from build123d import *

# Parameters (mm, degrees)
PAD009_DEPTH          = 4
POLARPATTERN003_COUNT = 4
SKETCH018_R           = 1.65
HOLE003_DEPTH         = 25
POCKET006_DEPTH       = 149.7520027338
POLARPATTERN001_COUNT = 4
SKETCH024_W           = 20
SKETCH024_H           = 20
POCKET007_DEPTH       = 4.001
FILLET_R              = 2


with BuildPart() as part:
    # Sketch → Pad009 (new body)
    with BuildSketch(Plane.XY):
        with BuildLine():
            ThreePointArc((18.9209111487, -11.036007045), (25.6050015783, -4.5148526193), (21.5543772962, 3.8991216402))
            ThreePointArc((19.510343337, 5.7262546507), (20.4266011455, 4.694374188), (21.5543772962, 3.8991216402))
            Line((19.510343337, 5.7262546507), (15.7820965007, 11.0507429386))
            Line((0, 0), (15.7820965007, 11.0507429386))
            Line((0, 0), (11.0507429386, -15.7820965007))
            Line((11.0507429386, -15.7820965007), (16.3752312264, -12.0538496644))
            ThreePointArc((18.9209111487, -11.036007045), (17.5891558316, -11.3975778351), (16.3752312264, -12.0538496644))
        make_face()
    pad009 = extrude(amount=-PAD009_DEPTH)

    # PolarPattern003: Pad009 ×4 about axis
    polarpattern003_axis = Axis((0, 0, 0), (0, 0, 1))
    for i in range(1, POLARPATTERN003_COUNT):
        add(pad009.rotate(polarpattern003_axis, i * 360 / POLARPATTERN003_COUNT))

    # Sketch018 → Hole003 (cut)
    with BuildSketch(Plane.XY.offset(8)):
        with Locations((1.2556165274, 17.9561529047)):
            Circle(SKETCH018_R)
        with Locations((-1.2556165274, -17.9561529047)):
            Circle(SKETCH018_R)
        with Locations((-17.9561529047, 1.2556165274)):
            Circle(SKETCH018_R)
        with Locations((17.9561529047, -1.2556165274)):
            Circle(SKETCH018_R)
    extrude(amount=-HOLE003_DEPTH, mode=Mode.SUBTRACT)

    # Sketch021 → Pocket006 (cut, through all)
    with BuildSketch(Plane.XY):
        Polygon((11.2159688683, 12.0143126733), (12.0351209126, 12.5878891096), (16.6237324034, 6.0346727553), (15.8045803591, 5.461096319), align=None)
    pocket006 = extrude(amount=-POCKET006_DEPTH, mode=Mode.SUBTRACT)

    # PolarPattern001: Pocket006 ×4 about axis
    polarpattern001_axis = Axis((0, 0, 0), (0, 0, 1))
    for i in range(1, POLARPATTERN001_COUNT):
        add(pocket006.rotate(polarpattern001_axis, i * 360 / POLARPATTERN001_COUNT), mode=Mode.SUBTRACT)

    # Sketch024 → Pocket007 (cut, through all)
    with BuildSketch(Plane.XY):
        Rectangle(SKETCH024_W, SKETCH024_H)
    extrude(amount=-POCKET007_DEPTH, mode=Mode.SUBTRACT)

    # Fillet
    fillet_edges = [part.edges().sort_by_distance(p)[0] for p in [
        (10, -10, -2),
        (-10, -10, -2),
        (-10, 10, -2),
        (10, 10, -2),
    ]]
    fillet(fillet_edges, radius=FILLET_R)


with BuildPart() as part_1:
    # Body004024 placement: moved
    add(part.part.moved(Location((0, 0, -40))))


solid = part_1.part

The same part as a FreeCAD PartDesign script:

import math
import FreeCAD as App
import Part
import Sketcher

V = App.Vector
Q = App.Units.Quantity


def edges_at(feature, points):
    """Names of the edges that pass closest to the given points."""
    edges = feature.Shape.Edges
    near = lambda p: min(range(len(edges)), key=lambda i: edges[i].distToShape(Part.Vertex(*p))[0])
    return sorted({f"Edge{near(p) + 1}" for p in points})


def add_polygon(sketch, points):
    """Adds a closed chain of lines whose ends are joined by coincident constraints."""
    first, n = sketch.GeometryCount, len(points)
    for a, b in zip(points, points[1:] + points[:1]):
        sketch.addGeometry(Part.LineSegment(App.Vector(*a, 0), App.Vector(*b, 0)), False)
    for i in range(n):
        sketch.addConstraint(Sketcher.Constraint("Coincident", first + i, 2, first + (i + 1) % n, 1))

doc = App.newDocument("Part")
body = doc.addObject("PartDesign::Body", "Body")

# Sketch on XY plane
sketch1 = body.newObject("Sketcher::SketchObject", "Sketch")
sketch1.AttachmentSupport = (doc.getObject("XY_Plane"), [""])
sketch1.MapMode = "FlatFace"
sketch1.addGeometry(Part.ArcOfCircle(Part.Circle(V(17.7, -3.1, 0), V(0, 0, 1), 8), math.radians(-81), math.radians(61)), False)
sketch1.addGeometry(Part.ArcOfCircle(Part.Circle(V(24.4, 9.2, 0), V(0, 0, 1), 6), math.radians(-145), math.radians(-119)), False)
sketch1.addGeometry(Part.LineSegment(V(19.5, 5.7, 0), V(15.8, 11.1, 0)), False)
sketch1.addGeometry(Part.LineSegment(V(15.8, 11.1, 0), V(0, 0, 0)), False)
sketch1.addGeometry(Part.LineSegment(V(0, 0, 0), V(11.1, -15.8, 0)), False)
sketch1.addGeometry(Part.LineSegment(V(11.1, -15.8, 0), V(16.4, -12.1, 0)), False)
sketch1.addGeometry(Part.ArcOfCircle(Part.Circle(V(19.8, -17, 0), V(0, 0, 1), 6), math.radians(99), math.radians(125)), False)
sketch1.addConstraint(Sketcher.Constraint("Tangent", 0, 2, 1, 2))
sketch1.addConstraint(Sketcher.Constraint("Tangent", 1, 1, 2, 1))
sketch1.addConstraint(Sketcher.Constraint("Coincident", 2, 2, 3, 1))
sketch1.addConstraint(Sketcher.Constraint("Coincident", 3, 2, 4, 1))
sketch1.addConstraint(Sketcher.Constraint("Coincident", 4, 2, 5, 1))
sketch1.addConstraint(Sketcher.Constraint("Tangent", 5, 2, 6, 2))
sketch1.addConstraint(Sketcher.Constraint("Tangent", 6, 1, 0, 1))
sketch1.addConstraint(Sketcher.Constraint("Coincident", 3, 2, -1, 1))
sketch1.addConstraint(Sketcher.Constraint("Equal", 1, 6))
sketch1.addConstraint(Sketcher.Constraint("Perpendicular", 2, 3))
sketch1.addConstraint(Sketcher.Constraint("Perpendicular", 3, 4))
sketch1.addConstraint(Sketcher.Constraint("Perpendicular", 4, 5))
sketch1.addConstraint(Sketcher.Constraint("Equal", 3, 4))
sketch1.addConstraint(Sketcher.Constraint("Equal", 2, 5))
sketch1.addConstraint(Sketcher.Constraint("Radius", 0, 8.0))
sketch1.addConstraint(Sketcher.Constraint("Radius", 1, 6.0))
sketch1.addConstraint(Sketcher.Constraint("Angle", 2, Q("125 deg")))
sketch1.addConstraint(Sketcher.Constraint("Distance", 2, 6.5))
sketch1.addConstraint(Sketcher.Constraint("DistanceX", 4, 2, 1, 1, 8.4596))
pad1 = body.newObject("PartDesign::Pad", "Pad")
pad1.Profile = sketch1
pad1.Length = 4
pad1.Reversed = True
doc.recompute()

polarpattern = body.newObject("PartDesign::PolarPattern", "PolarPattern")
polarpattern.Originals = [pad1]
polarpattern.Axis = (doc.getObject("Z_Axis"), [""])
polarpattern.Angle = 360
polarpattern.Occurrences = 4
body.Tip = polarpattern

# Sketch on XY plane
sketch2 = body.newObject("Sketcher::SketchObject", "Sketch001")
sketch2.AttachmentSupport = (doc.getObject("XY_Plane"), [""])
sketch2.MapMode = "FlatFace"
sketch2.AttachmentOffset = App.Placement(V(0, 0, 8), App.Rotation())
sketch2.addGeometry(Part.Circle(V(1.3, 18, 0), V(0, 0, 1), 1.6), False)
sketch2.addGeometry(Part.Circle(V(-1.3, -18, 0), V(0, 0, 1), 1.6), False)
sketch2.addGeometry(Part.Circle(V(-18, 1.3, 0), V(0, 0, 1), 1.6), False)
sketch2.addGeometry(Part.Circle(V(18, -1.3, 0), V(0, 0, 1), 1.6), False)
sketch2.addConstraint(Sketcher.Constraint("Equal", 0, 1))
sketch2.addConstraint(Sketcher.Constraint("Equal", 1, 2))
sketch2.addConstraint(Sketcher.Constraint("Equal", 2, 3))
sketch2.addConstraint(Sketcher.Constraint("Symmetric", 0, 3, 1, 3, -1, 1))
sketch2.addConstraint(Sketcher.Constraint("Symmetric", 2, 3, 3, 3, -1, 1))
sketch2.addConstraint(Sketcher.Constraint("Diameter", 0, 3.3))
sketch2.addConstraint(Sketcher.Constraint("DistanceX", 2, 3, 0, 3, 19.211769))
sketch2.addConstraint(Sketcher.Constraint("DistanceY", 1, 3, 2, 3, 19.211769))
sketch2.addConstraint(Sketcher.Constraint("DistanceX", -1, 1, 0, 3, 1.255617))
sketch2.addConstraint(Sketcher.Constraint("DistanceY", -1, 1, 0, 3, 17.956153))
pocket1 = body.newObject("PartDesign::Pocket", "Pocket")
pocket1.Profile = sketch2
pocket1.Length = 25

# Sketch on XY plane
sketch3 = body.newObject("Sketcher::SketchObject", "Sketch002")
sketch3.AttachmentSupport = (doc.getObject("XY_Plane"), [""])
sketch3.MapMode = "FlatFace"
add_polygon(sketch3, [(12, 12.6), (11.2, 12), (15.8, 5.5), (16.6, 6)])  # lines 0-3
sketch3.addConstraint(Sketcher.Constraint("Perpendicular", 0, 1))
sketch3.addConstraint(Sketcher.Constraint("Perpendicular", 1, 2))
sketch3.addConstraint(Sketcher.Constraint("Perpendicular", 2, 3))
sketch3.addConstraint(Sketcher.Constraint("Angle", 0, Q("-145 deg")))
sketch3.addConstraint(Sketcher.Constraint("Distance", 0, 1.0))
sketch3.addConstraint(Sketcher.Constraint("Distance", 1, 8.0))
sketch3.addConstraint(Sketcher.Constraint("DistanceX", -1, 1, 0, 2, 11.215969))
sketch3.addConstraint(Sketcher.Constraint("DistanceY", -1, 1, 3, 2, 12.587889))
pocket2 = body.newObject("PartDesign::Pocket", "Pocket001")
pocket2.Profile = sketch3
pocket2.Type = "ThroughAll"
doc.recompute()

polarpattern2 = body.newObject("PartDesign::PolarPattern", "PolarPattern001")
polarpattern2.Originals = [pocket2]
polarpattern2.Axis = (doc.getObject("Z_Axis"), [""])
polarpattern2.Angle = 360
polarpattern2.Occurrences = 4
body.Tip = polarpattern2

# Sketch on XY plane
sketch4 = body.newObject("Sketcher::SketchObject", "Sketch003")
sketch4.AttachmentSupport = (doc.getObject("XY_Plane"), [""])
sketch4.MapMode = "FlatFace"
add_polygon(sketch4, [(-10, 10), (-10, -10), (10, -10), (10, 10)])  # lines 0-3
sketch4.addConstraint(Sketcher.Constraint("Vertical", 0))
sketch4.addConstraint(Sketcher.Constraint("Horizontal", 1))
sketch4.addConstraint(Sketcher.Constraint("Vertical", 2))
sketch4.addConstraint(Sketcher.Constraint("Horizontal", 3))
sketch4.addConstraint(Sketcher.Constraint("Symmetric", 0, 2, 2, 2, -1, 1))
sketch4.addConstraint(Sketcher.Constraint("Equal", 3, 0))
sketch4.addConstraint(Sketcher.Constraint("DistanceX", 1, 1, 1, 2, 20.0))
pocket3 = body.newObject("PartDesign::Pocket", "Pocket002")
pocket3.Profile = sketch4
pocket3.Type = "ThroughAll"
doc.recompute()

fillet = body.newObject("PartDesign::Fillet", "Fillet")
fillet.Base = (pocket3, edges_at(pocket3, [
    (10, -10, -2),
    (-10, -10, -2),
    (-10, 10, -2),
    (10, 10, -2),
]))
fillet.Radius = 2
body2 = doc.addObject("PartDesign::Body", "Body001")
doc.recompute()

body.Placement = App.Placement(V(0, 0, -40), App.Rotation(V(0, 0, 1), 0))
boolean = body2.newObject("PartDesign::Boolean", "Boolean")
boolean.Type = "Fuse"
boolean.addObjects([body])

doc.recompute()
